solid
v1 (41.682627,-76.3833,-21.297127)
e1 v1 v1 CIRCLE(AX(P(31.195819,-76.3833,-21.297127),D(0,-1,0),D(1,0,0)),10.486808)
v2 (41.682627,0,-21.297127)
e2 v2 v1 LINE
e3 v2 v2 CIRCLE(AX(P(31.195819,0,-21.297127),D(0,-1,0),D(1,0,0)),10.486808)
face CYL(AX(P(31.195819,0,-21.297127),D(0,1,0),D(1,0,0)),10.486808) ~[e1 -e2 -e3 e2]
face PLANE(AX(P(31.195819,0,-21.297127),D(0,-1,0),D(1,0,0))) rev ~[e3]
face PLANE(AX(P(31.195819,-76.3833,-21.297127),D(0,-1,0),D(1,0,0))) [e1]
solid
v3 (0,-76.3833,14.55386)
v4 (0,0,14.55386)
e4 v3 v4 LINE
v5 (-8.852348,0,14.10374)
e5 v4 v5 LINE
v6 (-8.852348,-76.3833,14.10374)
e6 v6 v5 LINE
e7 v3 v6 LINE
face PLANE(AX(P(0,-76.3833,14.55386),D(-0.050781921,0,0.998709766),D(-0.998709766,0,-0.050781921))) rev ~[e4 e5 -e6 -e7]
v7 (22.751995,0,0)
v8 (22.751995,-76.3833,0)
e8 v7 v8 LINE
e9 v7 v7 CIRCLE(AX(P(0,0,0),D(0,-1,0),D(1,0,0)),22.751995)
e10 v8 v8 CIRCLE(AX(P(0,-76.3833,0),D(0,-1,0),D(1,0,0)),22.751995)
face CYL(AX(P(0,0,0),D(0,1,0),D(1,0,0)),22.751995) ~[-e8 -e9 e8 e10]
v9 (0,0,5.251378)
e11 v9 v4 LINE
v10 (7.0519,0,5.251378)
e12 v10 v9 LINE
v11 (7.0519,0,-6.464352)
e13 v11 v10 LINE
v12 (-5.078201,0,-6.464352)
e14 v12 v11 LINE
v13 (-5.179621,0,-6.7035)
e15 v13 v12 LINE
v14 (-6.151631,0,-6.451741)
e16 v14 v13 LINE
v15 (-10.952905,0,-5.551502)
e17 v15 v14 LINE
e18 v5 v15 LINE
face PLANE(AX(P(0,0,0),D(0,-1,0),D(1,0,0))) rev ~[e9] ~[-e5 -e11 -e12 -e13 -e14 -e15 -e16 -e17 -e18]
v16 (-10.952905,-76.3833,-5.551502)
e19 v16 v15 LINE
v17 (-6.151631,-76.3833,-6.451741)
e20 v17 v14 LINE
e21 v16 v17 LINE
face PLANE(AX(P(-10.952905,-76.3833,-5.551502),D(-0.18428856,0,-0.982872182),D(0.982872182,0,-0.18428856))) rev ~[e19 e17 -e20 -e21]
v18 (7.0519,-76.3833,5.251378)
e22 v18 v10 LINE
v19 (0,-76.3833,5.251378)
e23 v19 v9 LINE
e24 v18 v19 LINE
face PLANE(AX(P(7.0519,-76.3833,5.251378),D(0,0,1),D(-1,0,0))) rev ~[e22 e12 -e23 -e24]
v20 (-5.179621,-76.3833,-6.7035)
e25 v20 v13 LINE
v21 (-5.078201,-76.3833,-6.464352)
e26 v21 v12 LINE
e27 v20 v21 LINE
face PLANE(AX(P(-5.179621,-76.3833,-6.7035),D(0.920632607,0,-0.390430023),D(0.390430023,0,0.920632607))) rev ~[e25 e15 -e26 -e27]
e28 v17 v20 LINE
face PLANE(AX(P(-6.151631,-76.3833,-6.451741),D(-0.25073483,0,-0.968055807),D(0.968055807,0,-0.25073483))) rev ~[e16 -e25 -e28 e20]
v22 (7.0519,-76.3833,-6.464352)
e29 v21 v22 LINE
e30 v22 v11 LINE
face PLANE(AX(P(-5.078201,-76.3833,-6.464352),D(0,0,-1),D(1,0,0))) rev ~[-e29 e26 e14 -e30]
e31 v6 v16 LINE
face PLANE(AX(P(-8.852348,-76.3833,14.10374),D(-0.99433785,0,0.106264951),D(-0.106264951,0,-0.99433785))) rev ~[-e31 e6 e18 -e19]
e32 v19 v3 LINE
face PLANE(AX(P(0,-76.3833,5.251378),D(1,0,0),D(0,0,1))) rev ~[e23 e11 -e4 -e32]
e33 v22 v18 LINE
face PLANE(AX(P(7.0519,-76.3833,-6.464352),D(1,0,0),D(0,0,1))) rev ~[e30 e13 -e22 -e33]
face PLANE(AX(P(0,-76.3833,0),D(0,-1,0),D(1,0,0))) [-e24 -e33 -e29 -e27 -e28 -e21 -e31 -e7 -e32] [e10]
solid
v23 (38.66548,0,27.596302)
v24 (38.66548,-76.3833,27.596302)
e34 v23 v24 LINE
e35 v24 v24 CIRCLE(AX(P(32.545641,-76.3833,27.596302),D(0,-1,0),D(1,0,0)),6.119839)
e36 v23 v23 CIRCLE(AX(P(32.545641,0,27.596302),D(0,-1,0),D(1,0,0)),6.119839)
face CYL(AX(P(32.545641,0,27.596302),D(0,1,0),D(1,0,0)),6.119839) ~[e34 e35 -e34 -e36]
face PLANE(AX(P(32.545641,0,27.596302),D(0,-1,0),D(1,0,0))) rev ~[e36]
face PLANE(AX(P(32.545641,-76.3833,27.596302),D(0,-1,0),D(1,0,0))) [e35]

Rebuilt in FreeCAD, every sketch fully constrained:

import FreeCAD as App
import Part
import Sketcher
Q = App.Units.Quantity


def add_polygon(sketch, points):
    """Adds a closed chain of lines whose ends are joined by coincident constraints."""
    first, n = sketch.GeometryCount, len(points)
    for a, b in zip(points, points[1:] + points[:1]):
        sketch.addGeometry(Part.LineSegment(App.Vector(*a, 0), App.Vector(*b, 0)), False)
    for i in range(n):
        sketch.addConstraint(Sketcher.Constraint("Coincident", first + i, 2, first + (i + 1) % n, 1))

doc = App.newDocument("Part")
body = doc.addObject("PartDesign::Body", "Body")
body.AllowCompound = True

sketch1 = doc.addObject("Sketcher::SketchObject", "Sketch")
body.addObject(sketch1)
sketch1.AttachmentSupport = (doc.XZ_Plane, [""])
sketch1.MapMode = "FlatFace"
sketch1.addGeometry(Part.Circle(App.Vector(33, 28, 0), App.Vector(0, 0, 1), 6), False)
sketch1.addGeometry(Part.Circle(App.Vector(0, 0, 0), App.Vector(0, 0, 1), 23), False)
sketch1.addGeometry(Part.Circle(App.Vector(31, -21, 0), App.Vector(0, 0, 1), 10), False)
sketch1.addConstraint(Sketcher.Constraint("Coincident", 1, 3, -1, 1))
sketch1.addConstraint(Sketcher.Constraint("Diameter", 1, Q("45.50399 mm")))
sketch1.addConstraint(Sketcher.Constraint("Diameter", 0, Q("12.239678 mm")))
sketch1.addConstraint(Sketcher.Constraint("Diameter", 2, Q("20.973616 mm")))
sketch1.addConstraint(Sketcher.Constraint("DistanceX", -1, 1, 0, 3, Q("32.545641 mm")))
sketch1.addConstraint(Sketcher.Constraint("DistanceX", -1, 1, 2, 3, Q("31.195819 mm")))
sketch1.addConstraint(Sketcher.Constraint("DistanceY", 2, 3, 0, 3, Q("48.893429 mm")))
sketch1.addConstraint(Sketcher.Constraint("DistanceY", -1, 1, 0, 3, Q("27.596302 mm")))
pad1 = doc.addObject("PartDesign::Pad", "Pad")
body.addObject(pad1)
pad1.Profile = sketch1
pad1.Length = 76.3833

sketch2 = doc.addObject("Sketcher::SketchObject", "Sketch001")
body.addObject(sketch2)
sketch2.AttachmentSupport = (doc.XZ_Plane, [""])
sketch2.MapMode = "FlatFace"
sketch2.AttachmentOffset = App.Placement(App.Vector(0, 0, 76.3833), App.Rotation())
add_polygon(sketch2, [(-5.18, -6.7), (-5.08, -6.46), (7.05, -6.46), (7.05, 5.25), (0, 5.25), (0, 14.55), (-8.85, 14.1), (-10.95, -5.55), (-6.15, -6.45)])
sketch2.addConstraint(Sketcher.Constraint("Horizontal", 1))
sketch2.addConstraint(Sketcher.Constraint("Vertical", 2))
sketch2.addConstraint(Sketcher.Constraint("Horizontal", 3))
sketch2.addConstraint(Sketcher.Constraint("Vertical", 4))
sketch2.addConstraint(Sketcher.Constraint("PointOnObject", 3, 2, -2))
sketch2.addConstraint(Sketcher.Constraint("DistanceX", 1, 1, 1, 2, Q("12.130101 mm")))
sketch2.addConstraint(Sketcher.Constraint("DistanceX", 3, 2, 3, 1, Q("7.0519 mm")))
sketch2.addConstraint(Sketcher.Constraint("DistanceY", 2, 1, 2, 2, Q("11.71573 mm")))
sketch2.addConstraint(Sketcher.Constraint("DistanceY", 8, 2, -1, 1, Q("6.7035 mm")))
sketch2.addConstraint(Sketcher.Constraint("DistanceY", 4, 1, 4, 2, Q("9.302482 mm")))
sketch2.addConstraint(Sketcher.Constraint("DistanceY", -1, 1, 4, 2, Q("14.55386 mm")))
sketch2.addConstraint(Sketcher.Constraint("DistanceY", -1, 1, 5, 2, Q("14.10374 mm")))
sketch2.addConstraint(Sketcher.Constraint("DistanceX", 7, 2, -1, 1, Q("6.151631 mm")))
sketch2.addConstraint(Sketcher.Constraint("DistanceY", 7, 2, -1, 1, Q("6.451741 mm")))
sketch2.addConstraint(Sketcher.Constraint("DistanceX", 8, 2, -1, 1, Q("5.179621 mm")))
sketch2.addConstraint(Sketcher.Constraint("DistanceY", 0, 2, 6, 2, Q("0.91285 mm")))
sketch2.addConstraint(Sketcher.Constraint("Distance", 5, Q("8.863784 mm")))
sketch2.addConstraint(Sketcher.Constraint("Distance", 6, Q("19.767167 mm")))
pocket1 = doc.addObject("PartDesign::Pocket", "Pocket")
body.addObject(pocket1)
pocket1.Profile = sketch2
pocket1.Type = "ThroughAll"

doc.recompute()
